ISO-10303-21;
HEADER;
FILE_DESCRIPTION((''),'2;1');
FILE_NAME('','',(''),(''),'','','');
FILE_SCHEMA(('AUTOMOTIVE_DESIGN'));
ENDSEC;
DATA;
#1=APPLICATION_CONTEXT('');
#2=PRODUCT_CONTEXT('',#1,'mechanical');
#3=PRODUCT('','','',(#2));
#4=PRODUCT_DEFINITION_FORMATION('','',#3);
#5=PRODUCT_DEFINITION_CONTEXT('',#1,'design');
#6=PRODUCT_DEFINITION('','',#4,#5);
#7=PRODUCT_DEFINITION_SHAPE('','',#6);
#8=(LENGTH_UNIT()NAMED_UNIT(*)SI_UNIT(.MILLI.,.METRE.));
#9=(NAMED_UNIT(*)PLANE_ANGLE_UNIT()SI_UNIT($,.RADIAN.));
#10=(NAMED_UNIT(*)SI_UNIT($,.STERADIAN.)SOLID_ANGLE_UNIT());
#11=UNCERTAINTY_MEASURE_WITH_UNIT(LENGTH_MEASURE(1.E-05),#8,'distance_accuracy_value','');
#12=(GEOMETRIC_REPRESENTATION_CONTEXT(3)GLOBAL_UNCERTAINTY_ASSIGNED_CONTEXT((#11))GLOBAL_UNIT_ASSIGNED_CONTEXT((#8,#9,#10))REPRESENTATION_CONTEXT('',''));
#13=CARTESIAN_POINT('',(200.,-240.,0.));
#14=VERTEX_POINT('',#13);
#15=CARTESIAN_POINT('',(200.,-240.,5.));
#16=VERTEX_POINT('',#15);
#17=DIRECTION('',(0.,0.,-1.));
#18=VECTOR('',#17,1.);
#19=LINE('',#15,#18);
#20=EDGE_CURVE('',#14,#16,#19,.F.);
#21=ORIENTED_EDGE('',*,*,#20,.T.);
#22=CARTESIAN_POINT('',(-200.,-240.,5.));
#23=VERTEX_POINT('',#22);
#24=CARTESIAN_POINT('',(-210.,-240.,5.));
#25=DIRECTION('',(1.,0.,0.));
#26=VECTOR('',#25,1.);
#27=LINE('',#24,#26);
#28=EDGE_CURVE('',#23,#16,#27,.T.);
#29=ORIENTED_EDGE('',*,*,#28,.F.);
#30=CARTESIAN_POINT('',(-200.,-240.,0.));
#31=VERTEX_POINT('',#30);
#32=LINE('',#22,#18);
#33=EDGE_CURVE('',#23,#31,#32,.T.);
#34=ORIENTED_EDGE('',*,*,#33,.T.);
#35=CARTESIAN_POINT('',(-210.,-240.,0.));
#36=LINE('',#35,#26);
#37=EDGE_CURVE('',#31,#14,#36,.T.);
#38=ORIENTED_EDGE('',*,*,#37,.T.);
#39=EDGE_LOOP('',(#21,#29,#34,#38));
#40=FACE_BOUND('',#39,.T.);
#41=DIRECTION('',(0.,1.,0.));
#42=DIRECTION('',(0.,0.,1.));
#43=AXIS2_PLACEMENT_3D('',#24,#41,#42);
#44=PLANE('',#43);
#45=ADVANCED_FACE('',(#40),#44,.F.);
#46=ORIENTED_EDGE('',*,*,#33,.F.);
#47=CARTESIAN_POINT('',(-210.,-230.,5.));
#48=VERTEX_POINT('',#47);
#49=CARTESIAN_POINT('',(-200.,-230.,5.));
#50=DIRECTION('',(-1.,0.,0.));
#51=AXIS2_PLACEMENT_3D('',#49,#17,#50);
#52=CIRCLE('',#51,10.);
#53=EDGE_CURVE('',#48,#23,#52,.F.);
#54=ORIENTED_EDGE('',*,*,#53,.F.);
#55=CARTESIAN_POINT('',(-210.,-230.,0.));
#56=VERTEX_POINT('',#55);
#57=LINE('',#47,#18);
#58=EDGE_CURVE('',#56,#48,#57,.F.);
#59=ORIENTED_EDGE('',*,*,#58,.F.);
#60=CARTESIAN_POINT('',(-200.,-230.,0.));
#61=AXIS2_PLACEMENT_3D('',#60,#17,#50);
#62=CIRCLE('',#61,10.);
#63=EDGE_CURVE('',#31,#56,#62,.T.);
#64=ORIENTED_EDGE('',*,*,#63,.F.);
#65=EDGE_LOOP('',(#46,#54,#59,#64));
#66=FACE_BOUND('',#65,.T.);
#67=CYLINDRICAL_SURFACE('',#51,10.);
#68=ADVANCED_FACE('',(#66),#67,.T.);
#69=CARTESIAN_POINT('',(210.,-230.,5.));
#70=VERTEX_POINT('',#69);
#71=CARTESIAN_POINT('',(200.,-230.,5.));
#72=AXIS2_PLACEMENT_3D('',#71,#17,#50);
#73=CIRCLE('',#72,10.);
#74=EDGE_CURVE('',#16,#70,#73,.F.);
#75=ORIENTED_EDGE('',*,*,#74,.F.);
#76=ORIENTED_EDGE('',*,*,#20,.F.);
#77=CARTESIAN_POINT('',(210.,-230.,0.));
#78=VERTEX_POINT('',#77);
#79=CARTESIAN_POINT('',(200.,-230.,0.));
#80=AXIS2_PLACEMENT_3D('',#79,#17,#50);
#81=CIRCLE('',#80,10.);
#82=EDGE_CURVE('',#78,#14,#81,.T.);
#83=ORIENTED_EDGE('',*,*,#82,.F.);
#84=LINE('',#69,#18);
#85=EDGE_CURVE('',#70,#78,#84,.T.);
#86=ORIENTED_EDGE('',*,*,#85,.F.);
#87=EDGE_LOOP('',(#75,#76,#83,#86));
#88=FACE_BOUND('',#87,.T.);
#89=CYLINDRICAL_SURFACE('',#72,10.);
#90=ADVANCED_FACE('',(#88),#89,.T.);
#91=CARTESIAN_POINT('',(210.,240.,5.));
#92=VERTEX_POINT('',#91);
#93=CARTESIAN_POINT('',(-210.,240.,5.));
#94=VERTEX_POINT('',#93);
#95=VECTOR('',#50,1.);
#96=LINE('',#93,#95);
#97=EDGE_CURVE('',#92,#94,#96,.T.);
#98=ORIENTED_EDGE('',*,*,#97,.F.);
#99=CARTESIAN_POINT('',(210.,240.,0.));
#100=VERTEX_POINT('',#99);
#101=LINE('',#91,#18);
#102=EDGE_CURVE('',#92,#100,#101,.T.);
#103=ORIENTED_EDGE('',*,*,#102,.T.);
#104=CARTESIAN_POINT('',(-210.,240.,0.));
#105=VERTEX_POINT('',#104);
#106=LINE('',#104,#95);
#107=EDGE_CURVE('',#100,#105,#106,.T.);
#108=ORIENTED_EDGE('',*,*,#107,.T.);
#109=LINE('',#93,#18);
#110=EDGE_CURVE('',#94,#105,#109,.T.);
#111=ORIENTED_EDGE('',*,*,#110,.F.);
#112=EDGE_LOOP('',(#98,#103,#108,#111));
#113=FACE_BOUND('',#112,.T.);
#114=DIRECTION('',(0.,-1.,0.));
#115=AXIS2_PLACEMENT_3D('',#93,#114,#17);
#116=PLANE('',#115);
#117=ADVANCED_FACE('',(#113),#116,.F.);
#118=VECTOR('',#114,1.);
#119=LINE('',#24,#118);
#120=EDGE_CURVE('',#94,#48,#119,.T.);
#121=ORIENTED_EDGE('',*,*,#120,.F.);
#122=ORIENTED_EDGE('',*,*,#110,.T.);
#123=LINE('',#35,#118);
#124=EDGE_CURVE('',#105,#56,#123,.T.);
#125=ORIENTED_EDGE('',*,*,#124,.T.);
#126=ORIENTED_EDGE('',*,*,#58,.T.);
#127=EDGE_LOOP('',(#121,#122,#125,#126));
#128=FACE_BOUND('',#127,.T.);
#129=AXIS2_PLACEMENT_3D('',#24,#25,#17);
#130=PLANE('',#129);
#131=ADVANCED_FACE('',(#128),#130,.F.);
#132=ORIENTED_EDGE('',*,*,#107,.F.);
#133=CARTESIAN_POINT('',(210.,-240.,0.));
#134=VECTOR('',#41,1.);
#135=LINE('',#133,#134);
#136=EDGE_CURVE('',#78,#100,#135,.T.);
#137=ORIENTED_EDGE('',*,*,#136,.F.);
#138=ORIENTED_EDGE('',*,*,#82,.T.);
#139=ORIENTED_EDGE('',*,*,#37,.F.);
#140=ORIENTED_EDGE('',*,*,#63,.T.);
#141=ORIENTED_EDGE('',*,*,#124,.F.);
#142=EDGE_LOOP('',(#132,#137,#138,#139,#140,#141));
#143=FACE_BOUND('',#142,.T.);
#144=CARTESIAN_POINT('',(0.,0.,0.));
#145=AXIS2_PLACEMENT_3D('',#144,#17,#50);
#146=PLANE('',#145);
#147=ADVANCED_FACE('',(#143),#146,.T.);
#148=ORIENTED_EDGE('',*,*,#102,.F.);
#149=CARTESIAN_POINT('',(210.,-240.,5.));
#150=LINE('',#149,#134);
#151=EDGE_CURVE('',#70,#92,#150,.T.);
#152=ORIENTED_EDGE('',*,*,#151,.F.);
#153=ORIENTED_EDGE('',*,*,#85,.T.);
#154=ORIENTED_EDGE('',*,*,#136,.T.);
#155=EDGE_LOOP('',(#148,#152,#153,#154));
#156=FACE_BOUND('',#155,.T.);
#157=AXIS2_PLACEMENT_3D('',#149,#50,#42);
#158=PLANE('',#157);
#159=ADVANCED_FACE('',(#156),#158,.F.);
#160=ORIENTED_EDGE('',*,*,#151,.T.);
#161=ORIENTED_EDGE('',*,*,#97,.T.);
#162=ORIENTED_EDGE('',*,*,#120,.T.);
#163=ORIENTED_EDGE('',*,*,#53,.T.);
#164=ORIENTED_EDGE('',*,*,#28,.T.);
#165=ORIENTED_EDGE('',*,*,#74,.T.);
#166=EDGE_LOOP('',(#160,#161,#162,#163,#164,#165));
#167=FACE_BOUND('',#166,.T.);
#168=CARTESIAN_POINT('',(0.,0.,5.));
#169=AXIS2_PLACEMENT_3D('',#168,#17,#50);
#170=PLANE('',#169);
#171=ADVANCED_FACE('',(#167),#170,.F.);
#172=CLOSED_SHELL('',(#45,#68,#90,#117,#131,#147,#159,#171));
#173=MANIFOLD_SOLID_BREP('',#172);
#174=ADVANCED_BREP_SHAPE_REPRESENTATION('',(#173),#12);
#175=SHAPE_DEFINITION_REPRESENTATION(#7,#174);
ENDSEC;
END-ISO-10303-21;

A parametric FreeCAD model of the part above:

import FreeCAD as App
import Part
import Sketcher


def edges_at(feature, points):
    """Names of the edges that pass closest to the given points."""
    edges = feature.Shape.Edges
    near = lambda p: min(range(len(edges)), key=lambda i: edges[i].distToShape(Part.Vertex(*p))[0])
    return sorted({f"Edge{near(p) + 1}" for p in points})

doc = App.newDocument("Part")
body = doc.addObject("PartDesign::Body", "Body")

sketch1 = doc.addObject("Sketcher::SketchObject", "Sketch")
body.addObject(sketch1)
sketch1.AttachmentSupport = (doc.XY_Plane, [""])
sketch1.MapMode = "FlatFace"
sketch1.addGeometry(Part.LineSegment(App.Vector(-210, 240, 0), App.Vector(-210, -240, 0)), False)
sketch1.addGeometry(Part.LineSegment(App.Vector(-210, -240, 0), App.Vector(210, -240, 0)), False)
sketch1.addGeometry(Part.LineSegment(App.Vector(210, -240, 0), App.Vector(210, 240, 0)), False)
sketch1.addGeometry(Part.LineSegment(App.Vector(210, 240, 0), App.Vector(-210, 240, 0)), False)
sketch1.addConstraint(Sketcher.Constraint("Coincident", 0, 2, 1, 1))
sketch1.addConstraint(Sketcher.Constraint("Coincident", 1, 2, 2, 1))
sketch1.addConstraint(Sketcher.Constraint("Coincident", 2, 2, 3, 1))
sketch1.addConstraint(Sketcher.Constraint("Coincident", 3, 2, 0, 1))
sketch1.addConstraint(Sketcher.Constraint("Vertical", 0))
sketch1.addConstraint(Sketcher.Constraint("Horizontal", 1))
sketch1.addConstraint(Sketcher.Constraint("Vertical", 2))
sketch1.addConstraint(Sketcher.Constraint("Horizontal", 3))
sketch1.addConstraint(Sketcher.Constraint("Symmetric", 0, 2, 2, 2, -1, 1))
sketch1.addConstraint(Sketcher.Constraint("DistanceX", 1, 1, 1, 2, 420.0))
sketch1.addConstraint(Sketcher.Constraint("DistanceY", 0, 2, 0, 1, 480.0))
pad1 = doc.addObject("PartDesign::Pad", "Pad")
body.addObject(pad1)
pad1.Profile = sketch1
pad1.Length = 5
doc.recompute()

fillet = doc.addObject("PartDesign::Fillet", "Fillet")
body.addObject(fillet)
fillet.Base = (pad1, edges_at(pad1, [(210, -240, 2.5), (-210, -240, 2.5)]))
fillet.Radius = 10

doc.recompute()
